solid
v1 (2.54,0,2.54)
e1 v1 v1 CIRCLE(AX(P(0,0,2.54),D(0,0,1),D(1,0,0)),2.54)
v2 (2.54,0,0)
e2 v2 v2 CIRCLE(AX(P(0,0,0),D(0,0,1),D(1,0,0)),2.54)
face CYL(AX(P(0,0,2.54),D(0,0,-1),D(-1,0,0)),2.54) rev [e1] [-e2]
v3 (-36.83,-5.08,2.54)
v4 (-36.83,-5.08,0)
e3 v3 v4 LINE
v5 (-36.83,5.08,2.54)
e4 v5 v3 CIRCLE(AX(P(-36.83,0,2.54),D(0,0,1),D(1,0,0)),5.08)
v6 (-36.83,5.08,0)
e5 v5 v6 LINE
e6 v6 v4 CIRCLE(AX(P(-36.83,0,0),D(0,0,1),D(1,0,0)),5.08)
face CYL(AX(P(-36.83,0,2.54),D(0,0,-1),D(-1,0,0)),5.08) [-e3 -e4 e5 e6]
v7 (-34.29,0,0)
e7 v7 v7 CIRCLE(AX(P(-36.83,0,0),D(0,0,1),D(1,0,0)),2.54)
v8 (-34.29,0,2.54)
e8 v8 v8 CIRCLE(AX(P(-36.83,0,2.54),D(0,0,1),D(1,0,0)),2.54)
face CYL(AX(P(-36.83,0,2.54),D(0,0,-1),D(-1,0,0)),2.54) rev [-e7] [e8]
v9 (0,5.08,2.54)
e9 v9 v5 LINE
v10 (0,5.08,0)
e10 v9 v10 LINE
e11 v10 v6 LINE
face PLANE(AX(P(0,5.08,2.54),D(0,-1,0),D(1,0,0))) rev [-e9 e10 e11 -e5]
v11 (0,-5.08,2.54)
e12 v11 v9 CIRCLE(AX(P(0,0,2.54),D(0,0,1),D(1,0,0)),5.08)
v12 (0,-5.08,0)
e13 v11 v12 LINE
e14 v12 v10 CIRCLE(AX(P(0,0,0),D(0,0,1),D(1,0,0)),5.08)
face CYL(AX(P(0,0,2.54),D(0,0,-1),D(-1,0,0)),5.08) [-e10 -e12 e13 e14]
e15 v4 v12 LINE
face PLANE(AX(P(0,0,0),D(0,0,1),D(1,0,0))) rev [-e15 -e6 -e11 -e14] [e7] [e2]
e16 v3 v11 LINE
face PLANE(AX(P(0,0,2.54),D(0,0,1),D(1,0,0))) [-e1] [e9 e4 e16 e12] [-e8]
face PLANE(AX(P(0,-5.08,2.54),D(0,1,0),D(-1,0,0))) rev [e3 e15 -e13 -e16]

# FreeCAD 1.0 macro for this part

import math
import FreeCAD as App
import Part
import Sketcher

V = App.Vector
Q = App.Units.Quantity

doc = App.newDocument("Part")
body = doc.addObject("PartDesign::Body", "Body")

sketch1 = body.newObject("Sketcher::SketchObject", "Sketch")
sketch1.AttachmentSupport = (doc.getObject("XY_Plane"), [""])
sketch1.MapMode = "FlatFace"
sketch1.addGeometry([
    Part.LineSegment(V(-36.8, -5.1, 0), V(0, -5.1, 0)),
    Part.ArcOfCircle(Part.Circle(V(0, 0, 0), V(0, 0, 1), 5.1), math.radians(-90), math.radians(90)),
    Part.LineSegment(V(0, 5.1, 0), V(-36.8, 5.1, 0)),
    Part.ArcOfCircle(Part.Circle(V(-36.8, 0, 0), V(0, 0, 1), 5.1), math.radians(90), math.radians(270)),
    Part.Circle(V(0, 0, 0), V(0, 0, 1), 2.5),
    Part.Circle(V(-36.8, 0, 0), V(0, 0, 1), 2.5),
], False)
sketch1.addConstraint([
    Sketcher.Constraint("Tangent", 0, 2, 1, 1),
    Sketcher.Constraint("Tangent", 1, 2, 2, 1),
    Sketcher.Constraint("Tangent", 2, 2, 3, 1),
    Sketcher.Constraint("Tangent", 3, 2, 0, 1),
    Sketcher.Constraint("Horizontal", 0),
    Sketcher.Constraint("Horizontal", 2),
    Sketcher.Constraint("Coincident", 1, 3, -1, 1),
    Sketcher.Constraint("Coincident", 4, 3, -1, 1),
    Sketcher.Constraint("Coincident", 5, 3, 3, 3),
    Sketcher.Constraint("Equal", 4, 5),
    Sketcher.Constraint("Diameter", 4, Q("0.2 in")),
    Sketcher.Constraint("Radius", 1, Q("0.2 in")),
    Sketcher.Constraint("DistanceX", 0, 1, 0, 2, Q("1.45 in")),
])
pad1 = body.newObject("PartDesign::Pad", "Pad")
pad1.Profile = sketch1
pad1.Length = Q("0.1 in")

doc.recompute()
